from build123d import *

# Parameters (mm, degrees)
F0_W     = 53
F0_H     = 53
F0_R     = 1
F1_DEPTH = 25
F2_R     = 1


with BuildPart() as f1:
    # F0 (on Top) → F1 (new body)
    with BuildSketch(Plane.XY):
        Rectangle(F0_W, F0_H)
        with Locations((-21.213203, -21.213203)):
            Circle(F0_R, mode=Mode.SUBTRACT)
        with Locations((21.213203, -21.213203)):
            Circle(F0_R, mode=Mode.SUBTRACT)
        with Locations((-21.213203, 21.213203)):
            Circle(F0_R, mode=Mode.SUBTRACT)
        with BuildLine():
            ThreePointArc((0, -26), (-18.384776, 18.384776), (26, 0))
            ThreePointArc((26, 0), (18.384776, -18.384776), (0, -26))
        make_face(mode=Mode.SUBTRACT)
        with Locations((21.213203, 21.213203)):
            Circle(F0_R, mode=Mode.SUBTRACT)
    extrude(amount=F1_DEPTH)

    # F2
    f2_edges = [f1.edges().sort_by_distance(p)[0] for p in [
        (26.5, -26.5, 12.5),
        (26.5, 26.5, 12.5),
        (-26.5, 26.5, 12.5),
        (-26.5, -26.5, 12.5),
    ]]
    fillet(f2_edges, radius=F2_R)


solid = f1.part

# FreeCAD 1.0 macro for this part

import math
import FreeCAD as App
import Part
import Sketcher

V = App.Vector
Q = App.Units.Quantity


def edges_at(feature, points):
    """Names of the edges that pass closest to the given points."""
    edges = feature.Shape.Edges
    near = lambda p: min(range(len(edges)), key=lambda i: edges[i].distToShape(Part.Vertex(*p))[0])
    return sorted({f"Edge{near(p) + 1}" for p in points})

doc = App.newDocument("Part")
params = doc.addObject("Spreadsheet::Sheet", "Params")
for row, (alias, value) in enumerate([
    ("sketch1_diameter", "2 mm"),
    ("sketch1_radius", "26.000001 mm"),
    ("sketch1_width", "53 mm"),
    ("pad1_length", "25 mm"),
    ("fillet_radius", "1 mm"),
], start=1):
    params.set(f"A{row}", alias)
    params.set(f"B{row}", "=" + value)
    params.setAlias(f"B{row}", alias)

body = doc.addObject("PartDesign::Body", "Body")

# Sketch on XY plane
sketch1 = body.newObject("Sketcher::SketchObject", "Sketch")
sketch1.AttachmentSupport = (doc.getObject("XY_Plane"), [""])
sketch1.MapMode = "FlatFace"
sketch1.addGeometry([
    Part.LineSegment(V(-26.5, 26.5, 0), V(-26.5, -26.5, 0)),  # 0
    Part.LineSegment(V(-26.5, -26.5, 0), V(26.5, -26.5, 0)),  # 1
    Part.LineSegment(V(26.5, -26.5, 0), V(26.5, 26.5, 0)),  # 2
    Part.LineSegment(V(26.5, 26.5, 0), V(-26.5, 26.5, 0)),  # 3
    Part.Circle(V(-21.2, -21.2, 0), V(0, 0, 1), 1),  # 4
    Part.Circle(V(21.2, -21.2, 0), V(0, 0, 1), 1),  # 5
    Part.Circle(V(-21.2, 21.2, 0), V(0, 0, 1), 1),  # 6
    Part.ArcOfCircle(Part.Circle(V(0, 0, 0), V(0, 0, 1), 26), math.radians(-90), math.radians(0)),  # 7
    Part.ArcOfCircle(Part.Circle(V(0, 0, 0), V(0, 0, 1), 26), math.radians(0), math.radians(270)),  # 8
    Part.Circle(V(21.2, 21.2, 0), V(0, 0, 1), 1),  # 9
], False)
sketch1.addConstraint([
    Sketcher.Constraint("Coincident", 0, 2, 1, 1),
    Sketcher.Constraint("Coincident", 1, 2, 2, 1),
    Sketcher.Constraint("Coincident", 2, 2, 3, 1),
    Sketcher.Constraint("Coincident", 3, 2, 0, 1),
    Sketcher.Constraint("Tangent", 7, 1, 8, 2),
    Sketcher.Constraint("Coincident", 8, 1, 7, 2),
    Sketcher.Constraint("Vertical", 0),
    Sketcher.Constraint("Horizontal", 1),
    Sketcher.Constraint("Vertical", 2),
    Sketcher.Constraint("Horizontal", 3),
    Sketcher.Constraint("Coincident", 7, 3, -1, 1),
    Sketcher.Constraint("Equal", 4, 5),
    Sketcher.Constraint("Equal", 5, 6),
    Sketcher.Constraint("Equal", 6, 9),
    Sketcher.Constraint("Symmetric", 5, 3, 6, 3, -1, 1),
    Sketcher.Constraint("Symmetric", 4, 3, 9, 3, -1, 1),
    Sketcher.Constraint("Symmetric", 0, 2, 2, 2, -1, 1),
    Sketcher.Constraint("Symmetric", 4, 3, 5, 3, -2),
    Sketcher.Constraint("PointOnObject", 7, 1, -2),
    Sketcher.Constraint("PointOnObject", 8, 1, -1),
    Sketcher.Constraint("Equal", 3, 0),
    Sketcher.Constraint("Diameter", 4, Q("2 mm")),
    Sketcher.Constraint("Radius", 7, Q("26.000001 mm")),
    Sketcher.Constraint("DistanceX", 1, 1, 1, 2, Q("53 mm")),
    Sketcher.Constraint("DistanceX", 6, 3, 7, 3, Q("21.213202 mm")),
    Sketcher.Constraint("DistanceY", 7, 3, 6, 3, Q("21.213202 mm")),
])
sketch1.setExpression("Constraints[21]", "Params.sketch1_diameter")
sketch1.setExpression("Constraints[22]", "Params.sketch1_radius")
sketch1.setExpression("Constraints[23]", "Params.sketch1_width")
pad1 = body.newObject("PartDesign::Pad", "Pad")
pad1.Profile = sketch1
pad1.setExpression("Length", "Params.pad1_length")
doc.recompute()

fillet = body.newObject("PartDesign::Fillet", "Fillet")
fillet.Base = (pad1, edges_at(pad1, [
    (26.5, -26.5, 12.5),
    (26.5, 26.5, 12.5),
    (-26.5, 26.5, 12.5),
    (-26.5, -26.5, 12.5),
]))
fillet.setExpression("Radius", "Params.fillet_radius")

doc.recompute()
